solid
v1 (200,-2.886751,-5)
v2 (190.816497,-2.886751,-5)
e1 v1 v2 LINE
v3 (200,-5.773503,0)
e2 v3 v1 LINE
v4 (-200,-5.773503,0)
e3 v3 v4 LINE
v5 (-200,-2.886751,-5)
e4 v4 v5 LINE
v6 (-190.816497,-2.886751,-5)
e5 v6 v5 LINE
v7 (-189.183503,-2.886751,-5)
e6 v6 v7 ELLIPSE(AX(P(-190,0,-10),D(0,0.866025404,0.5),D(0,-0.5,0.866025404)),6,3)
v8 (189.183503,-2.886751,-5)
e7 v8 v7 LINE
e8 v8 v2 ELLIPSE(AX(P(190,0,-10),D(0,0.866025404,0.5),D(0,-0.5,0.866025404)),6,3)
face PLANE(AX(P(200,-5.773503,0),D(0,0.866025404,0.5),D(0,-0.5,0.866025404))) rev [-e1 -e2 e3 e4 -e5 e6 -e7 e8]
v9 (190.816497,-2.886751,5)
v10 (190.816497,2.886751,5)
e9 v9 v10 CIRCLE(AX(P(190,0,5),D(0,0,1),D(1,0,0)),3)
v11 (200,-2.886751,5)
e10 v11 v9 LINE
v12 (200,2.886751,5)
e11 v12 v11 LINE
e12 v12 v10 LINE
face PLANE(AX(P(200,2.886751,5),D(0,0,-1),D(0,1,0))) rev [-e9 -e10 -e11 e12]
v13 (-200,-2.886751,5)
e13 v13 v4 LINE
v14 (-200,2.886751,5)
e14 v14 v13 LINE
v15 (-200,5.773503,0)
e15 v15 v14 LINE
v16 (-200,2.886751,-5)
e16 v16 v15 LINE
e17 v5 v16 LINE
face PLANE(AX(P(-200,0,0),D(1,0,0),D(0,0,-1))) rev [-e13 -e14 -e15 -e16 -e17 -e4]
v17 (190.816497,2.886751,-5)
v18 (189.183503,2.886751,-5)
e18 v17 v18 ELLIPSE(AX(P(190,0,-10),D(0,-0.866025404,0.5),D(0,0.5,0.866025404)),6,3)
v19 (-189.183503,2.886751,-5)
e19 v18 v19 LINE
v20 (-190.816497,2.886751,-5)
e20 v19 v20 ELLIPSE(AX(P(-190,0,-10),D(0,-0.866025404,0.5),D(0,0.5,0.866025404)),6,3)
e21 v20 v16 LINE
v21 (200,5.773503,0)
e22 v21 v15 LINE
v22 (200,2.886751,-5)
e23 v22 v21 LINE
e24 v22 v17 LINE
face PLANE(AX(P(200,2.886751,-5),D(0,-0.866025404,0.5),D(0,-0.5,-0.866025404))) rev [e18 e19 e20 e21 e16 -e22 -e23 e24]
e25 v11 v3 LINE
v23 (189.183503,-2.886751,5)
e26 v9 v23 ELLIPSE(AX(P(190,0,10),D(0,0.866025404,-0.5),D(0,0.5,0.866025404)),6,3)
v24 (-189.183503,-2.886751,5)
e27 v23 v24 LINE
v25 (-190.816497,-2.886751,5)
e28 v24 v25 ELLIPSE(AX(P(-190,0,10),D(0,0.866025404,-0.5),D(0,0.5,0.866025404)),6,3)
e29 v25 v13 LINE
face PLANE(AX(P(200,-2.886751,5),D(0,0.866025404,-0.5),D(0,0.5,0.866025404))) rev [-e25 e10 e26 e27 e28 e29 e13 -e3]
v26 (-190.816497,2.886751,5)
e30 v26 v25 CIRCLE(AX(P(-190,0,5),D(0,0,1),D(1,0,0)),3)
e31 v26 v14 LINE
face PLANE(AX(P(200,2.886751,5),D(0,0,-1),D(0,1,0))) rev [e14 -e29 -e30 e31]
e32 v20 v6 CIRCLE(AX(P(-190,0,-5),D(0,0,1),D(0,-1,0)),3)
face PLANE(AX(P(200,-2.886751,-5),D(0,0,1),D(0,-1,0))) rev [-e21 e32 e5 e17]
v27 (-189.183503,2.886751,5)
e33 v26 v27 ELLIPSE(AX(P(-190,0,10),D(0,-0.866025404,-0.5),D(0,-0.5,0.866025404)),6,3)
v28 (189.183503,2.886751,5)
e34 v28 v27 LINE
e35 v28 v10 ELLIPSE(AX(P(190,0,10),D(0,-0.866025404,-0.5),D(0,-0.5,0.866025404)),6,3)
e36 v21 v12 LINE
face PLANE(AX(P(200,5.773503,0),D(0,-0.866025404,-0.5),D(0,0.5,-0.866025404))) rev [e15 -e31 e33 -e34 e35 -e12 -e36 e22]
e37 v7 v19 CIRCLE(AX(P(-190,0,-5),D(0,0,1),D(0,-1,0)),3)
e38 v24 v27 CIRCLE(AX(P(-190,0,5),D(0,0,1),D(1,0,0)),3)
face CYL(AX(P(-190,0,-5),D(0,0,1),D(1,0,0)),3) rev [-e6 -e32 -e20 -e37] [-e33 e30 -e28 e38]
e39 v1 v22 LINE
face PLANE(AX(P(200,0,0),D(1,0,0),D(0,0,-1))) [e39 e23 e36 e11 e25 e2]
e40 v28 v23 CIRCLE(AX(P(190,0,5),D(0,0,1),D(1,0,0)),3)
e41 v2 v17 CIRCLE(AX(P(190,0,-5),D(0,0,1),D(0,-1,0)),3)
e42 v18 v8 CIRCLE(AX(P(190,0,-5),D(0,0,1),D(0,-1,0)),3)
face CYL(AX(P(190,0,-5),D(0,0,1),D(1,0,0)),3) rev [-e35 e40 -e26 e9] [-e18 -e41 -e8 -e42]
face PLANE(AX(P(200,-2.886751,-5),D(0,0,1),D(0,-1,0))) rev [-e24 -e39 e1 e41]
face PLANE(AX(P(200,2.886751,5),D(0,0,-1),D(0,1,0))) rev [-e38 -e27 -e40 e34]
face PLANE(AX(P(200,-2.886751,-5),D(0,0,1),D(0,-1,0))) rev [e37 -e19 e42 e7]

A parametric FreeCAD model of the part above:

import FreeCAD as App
import Part
import Sketcher
Q = App.Units.Quantity


def add_polygon(sketch, points):
    """Adds a closed chain of lines whose ends are joined by coincident constraints."""
    first, n = sketch.GeometryCount, len(points)
    for a, b in zip(points, points[1:] + points[:1]):
        sketch.addGeometry(Part.LineSegment(App.Vector(*a, 0), App.Vector(*b, 0)), False)
    for i in range(n):
        sketch.addConstraint(Sketcher.Constraint("Coincident", first + i, 2, first + (i + 1) % n, 1))

doc = App.newDocument("Part")
body = doc.addObject("PartDesign::Body", "Body")

sketch1 = doc.addObject("Sketcher::SketchObject", "Sketch")
body.addObject(sketch1)
sketch1.AttachmentSupport = (doc.YZ_Plane, [""])
sketch1.MapMode = "FlatFace"
add_polygon(sketch1, [(6, 0), (3, 5), (-3, 5), (-6, 0), (-3, -5), (3, -5)])
sketch1.addConstraint(Sketcher.Constraint("Horizontal", 1))
sketch1.addConstraint(Sketcher.Constraint("Horizontal", 4))
sketch1.addConstraint(Sketcher.Constraint("Symmetric", 0, 2, 3, 2, -1, 1))
sketch1.addConstraint(Sketcher.Constraint("Symmetric", 2, 2, 5, 2, -1, 1))
sketch1.addConstraint(Sketcher.Constraint("PointOnObject", 2, 2, -1))
sketch1.addConstraint(Sketcher.Constraint("Parallel", 2, 5))
sketch1.addConstraint(Sketcher.Constraint("Vertical", 1, 2, 3, 2))
sketch1.addConstraint(Sketcher.Constraint("Angle", 0, Q("120 deg")))
sketch1.addConstraint(Sketcher.Constraint("DistanceY", -1, 1, 0, 2, 5.0))
sketch1.addConstraint(Sketcher.Constraint("DistanceX", 1, 2, 1, 1, 5.773503))
pad1 = doc.addObject("PartDesign::Pad", "Pad")
body.addObject(pad1)
pad1.Profile = sketch1
pad1.Length = 400
pad1.Midplane = True

sketch2 = doc.addObject("Sketcher::SketchObject", "Sketch001")
body.addObject(sketch2)
sketch2.AttachmentSupport = (doc.XY_Plane, [""])
sketch2.MapMode = "FlatFace"
sketch2.addGeometry(Part.Circle(App.Vector(190, 0, 0), App.Vector(0, 0, 1), 3), False)
sketch2.addGeometry(Part.Circle(App.Vector(-190, 0, 0), App.Vector(0, 0, 1), 3), False)
sketch2.addConstraint(Sketcher.Constraint("Equal", 0, 1))
sketch2.addConstraint(Sketcher.Constraint("Symmetric", 0, 3, 1, 3, -1, 1))
sketch2.addConstraint(Sketcher.Constraint("PointOnObject", 0, 3, -1))
sketch2.addConstraint(Sketcher.Constraint("Diameter", 0, 6.0))
sketch2.addConstraint(Sketcher.Constraint("DistanceX", -1, 1, 0, 3, 190.0))
pocket1 = doc.addObject("PartDesign::Pocket", "Pocket")
body.addObject(pocket1)
pocket1.Profile = sketch2
pocket1.Type = "ThroughAll"
pocket1.Midplane = True

doc.recompute()
